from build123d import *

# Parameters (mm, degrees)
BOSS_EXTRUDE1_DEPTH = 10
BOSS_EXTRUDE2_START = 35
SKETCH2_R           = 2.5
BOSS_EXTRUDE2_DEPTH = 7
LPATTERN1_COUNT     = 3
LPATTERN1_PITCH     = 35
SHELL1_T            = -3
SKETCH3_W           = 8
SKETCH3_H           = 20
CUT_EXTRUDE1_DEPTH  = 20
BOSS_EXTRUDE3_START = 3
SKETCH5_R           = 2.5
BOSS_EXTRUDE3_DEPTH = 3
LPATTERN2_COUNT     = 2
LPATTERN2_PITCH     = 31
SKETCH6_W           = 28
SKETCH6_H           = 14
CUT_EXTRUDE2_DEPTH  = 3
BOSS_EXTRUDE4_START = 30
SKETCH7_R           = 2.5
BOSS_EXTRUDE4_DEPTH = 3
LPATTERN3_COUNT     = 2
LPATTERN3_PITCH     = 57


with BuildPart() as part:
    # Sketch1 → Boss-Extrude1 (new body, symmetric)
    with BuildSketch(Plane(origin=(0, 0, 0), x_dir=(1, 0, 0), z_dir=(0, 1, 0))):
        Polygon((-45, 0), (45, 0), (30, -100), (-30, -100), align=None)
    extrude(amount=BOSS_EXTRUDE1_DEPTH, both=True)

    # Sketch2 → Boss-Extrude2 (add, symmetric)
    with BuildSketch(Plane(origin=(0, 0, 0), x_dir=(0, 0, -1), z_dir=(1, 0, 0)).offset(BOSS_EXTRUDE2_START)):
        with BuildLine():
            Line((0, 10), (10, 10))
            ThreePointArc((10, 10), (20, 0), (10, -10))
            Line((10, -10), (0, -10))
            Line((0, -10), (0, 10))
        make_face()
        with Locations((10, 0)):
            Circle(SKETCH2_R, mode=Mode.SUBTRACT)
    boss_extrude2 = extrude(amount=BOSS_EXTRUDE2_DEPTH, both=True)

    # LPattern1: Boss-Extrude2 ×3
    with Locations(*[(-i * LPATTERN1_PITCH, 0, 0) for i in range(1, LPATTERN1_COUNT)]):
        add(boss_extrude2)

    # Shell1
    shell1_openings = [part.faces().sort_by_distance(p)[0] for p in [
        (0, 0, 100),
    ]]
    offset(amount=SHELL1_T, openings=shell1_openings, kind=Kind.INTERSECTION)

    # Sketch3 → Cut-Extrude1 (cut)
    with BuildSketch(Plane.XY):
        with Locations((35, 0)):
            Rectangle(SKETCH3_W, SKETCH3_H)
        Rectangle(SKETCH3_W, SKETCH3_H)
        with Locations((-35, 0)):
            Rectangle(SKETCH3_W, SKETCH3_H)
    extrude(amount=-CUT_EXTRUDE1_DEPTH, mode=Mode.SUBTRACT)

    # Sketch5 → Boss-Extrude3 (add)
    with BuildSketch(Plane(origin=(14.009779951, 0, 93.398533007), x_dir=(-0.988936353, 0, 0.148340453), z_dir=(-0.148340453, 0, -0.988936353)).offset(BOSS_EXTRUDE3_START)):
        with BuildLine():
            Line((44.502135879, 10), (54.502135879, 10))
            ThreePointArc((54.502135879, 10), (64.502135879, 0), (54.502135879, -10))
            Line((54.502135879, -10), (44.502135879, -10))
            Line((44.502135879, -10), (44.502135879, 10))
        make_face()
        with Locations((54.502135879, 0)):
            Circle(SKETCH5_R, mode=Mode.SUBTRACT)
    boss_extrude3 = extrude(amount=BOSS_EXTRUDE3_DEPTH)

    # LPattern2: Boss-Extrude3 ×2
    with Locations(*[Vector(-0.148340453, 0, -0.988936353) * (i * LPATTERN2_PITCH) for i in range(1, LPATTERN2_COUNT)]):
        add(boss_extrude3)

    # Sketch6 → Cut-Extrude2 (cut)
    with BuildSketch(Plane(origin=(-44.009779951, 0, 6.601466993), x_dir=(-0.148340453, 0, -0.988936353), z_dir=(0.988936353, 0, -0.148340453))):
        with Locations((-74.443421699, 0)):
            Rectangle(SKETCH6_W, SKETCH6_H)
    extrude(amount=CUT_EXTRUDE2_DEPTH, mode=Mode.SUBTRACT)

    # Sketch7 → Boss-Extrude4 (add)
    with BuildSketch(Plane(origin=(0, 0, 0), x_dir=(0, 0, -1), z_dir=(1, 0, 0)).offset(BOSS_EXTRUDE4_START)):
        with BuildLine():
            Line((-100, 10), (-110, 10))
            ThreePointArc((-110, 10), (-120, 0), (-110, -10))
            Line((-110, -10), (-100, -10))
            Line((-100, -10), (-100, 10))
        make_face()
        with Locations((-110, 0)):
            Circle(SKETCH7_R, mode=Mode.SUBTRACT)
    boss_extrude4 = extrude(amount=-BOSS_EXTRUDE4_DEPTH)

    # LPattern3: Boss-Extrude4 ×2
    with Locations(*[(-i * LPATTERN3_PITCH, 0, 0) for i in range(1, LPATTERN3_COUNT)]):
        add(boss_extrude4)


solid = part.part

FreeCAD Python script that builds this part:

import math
import FreeCAD as App
import Part
import Sketcher
from FreeCAD import Vector
Q = App.Units.Quantity


def faces_at(feature, points):
    """Names of the faces that lie closest to the given points."""
    faces = feature.Shape.Faces
    near = lambda p: min(range(len(faces)), key=lambda i: faces[i].distToShape(Part.Vertex(*p))[0])
    return sorted({f"Face{near(p) + 1}" for p in points})

doc = App.newDocument("Part")
body = doc.addObject("PartDesign::Body", "Body")

# Sketch on XZ plane
sketch1 = body.newObject("Sketcher::SketchObject", "Sketch")
sketch1.AttachmentSupport = (doc.getObject("XZ_Plane"), [""])
sketch1.MapMode = "FlatFace"
sketch1.addGeometry(Part.LineSegment(Vector(45, 0, 0), Vector(-45, 0, 0)), False)
sketch1.addGeometry(Part.LineSegment(Vector(-45, 0, 0), Vector(-30, 100, 0)), False)
sketch1.addGeometry(Part.LineSegment(Vector(-30, 100, 0), Vector(30, 100, 0)), False)
sketch1.addGeometry(Part.LineSegment(Vector(30, 100, 0), Vector(45, 0, 0)), False)
sketch1.addConstraint(Sketcher.Constraint("Coincident", 0, 2, 1, 1))
sketch1.addConstraint(Sketcher.Constraint("Coincident", 1, 2, 2, 1))
sketch1.addConstraint(Sketcher.Constraint("Coincident", 2, 2, 3, 1))
sketch1.addConstraint(Sketcher.Constraint("Coincident", 3, 2, 0, 1))
sketch1.addConstraint(Sketcher.Constraint("Horizontal", 0))
sketch1.addConstraint(Sketcher.Constraint("Horizontal", 2))
sketch1.addConstraint(Sketcher.Constraint("Symmetric", 0, 2, 3, 2, -1, 1))
sketch1.addConstraint(Sketcher.Constraint("Equal", 1, 3))
sketch1.addConstraint(Sketcher.Constraint("DistanceX", 0, 2, 0, 1, Q("90 mm")))
sketch1.addConstraint(Sketcher.Constraint("DistanceX", 2, 1, 2, 2, Q("60 mm")))
sketch1.addConstraint(Sketcher.Constraint("DistanceY", -1, 1, 1, 2, Q("100 mm")))
pad1 = body.newObject("PartDesign::Pad", "Pad")
pad1.Profile = sketch1
pad1.Length = 20
pad1.Midplane = True

# Sketch on YZ plane
sketch2 = body.newObject("Sketcher::SketchObject", "Sketch001")
sketch2.AttachmentSupport = (doc.getObject("YZ_Plane"), [""])
sketch2.MapMode = "FlatFace"
sketch2.AttachmentOffset = App.Placement(Vector(0, 0, 35), App.Rotation())
sketch2.addGeometry(Part.LineSegment(Vector(10, -10, 0), Vector(10, 0, 0)), False)
sketch2.addGeometry(Part.LineSegment(Vector(10, 0, 0), Vector(-10, 0, 0)), False)
sketch2.addGeometry(Part.LineSegment(Vector(-10, 0, 0), Vector(-10, -10, 0)), False)
sketch2.addGeometry(Part.ArcOfCircle(Part.Circle(Vector(0, -10, 0), Vector(0, 0, 1), 10), math.radians(180), math.radians(360)), False)
sketch2.addGeometry(Part.Circle(Vector(0, -10, 0), Vector(0, 0, 1), 2.5), False)
sketch2.addConstraint(Sketcher.Constraint("Coincident", 0, 2, 1, 1))
sketch2.addConstraint(Sketcher.Constraint("Coincident", 1, 2, 2, 1))
sketch2.addConstraint(Sketcher.Constraint("Tangent", 2, 2, 3, 1))
sketch2.addConstraint(Sketcher.Constraint("Tangent", 3, 2, 0, 1))
sketch2.addConstraint(Sketcher.Constraint("Vertical", 0))
sketch2.addConstraint(Sketcher.Constraint("Horizontal", 1))
sketch2.addConstraint(Sketcher.Constraint("Vertical", 2))
sketch2.addConstraint(Sketcher.Constraint("Coincident", 4, 3, 3, 3))
sketch2.addConstraint(Sketcher.Constraint("Symmetric", 0, 2, 1, 2, -1, 1))
sketch2.addConstraint(Sketcher.Constraint("Diameter", 4, Q("5 mm")))
sketch2.addConstraint(Sketcher.Constraint("Radius", 3, Q("10 mm")))
sketch2.addConstraint(Sketcher.Constraint("DistanceY", 0, 1, 0, 2, Q("10 mm")))
pad2 = body.newObject("PartDesign::Pad", "Pad001")
pad2.Profile = sketch2
pad2.Length = 14
pad2.Midplane = True
doc.recompute()

linearpattern = body.newObject("PartDesign::LinearPattern", "LinearPattern")
linearpattern.Originals = [pad2]
linearpattern.Direction = (doc.getObject("X_Axis"), [""])
linearpattern.Mode = "offset"
linearpattern.Offset = 35
linearpattern.Occurrences = 3
linearpattern.Reversed = True
body.Tip = linearpattern
doc.recompute()

thickness = body.newObject("PartDesign::Thickness", "Thickness")
thickness.Base = (linearpattern, faces_at(linearpattern, [(0, 0, 100)]))
thickness.Value = 3
thickness.Reversed = True
thickness.Join = "Intersection"

# Sketch on XY plane
sketch3 = body.newObject("Sketcher::SketchObject", "Sketch002")
sketch3.AttachmentSupport = (doc.getObject("XY_Plane"), [""])
sketch3.MapMode = "FlatFace"
sketch3.addGeometry(Part.LineSegment(Vector(31, 10, 0), Vector(31, -10, 0)), False)
sketch3.addGeometry(Part.LineSegment(Vector(31, -10, 0), Vector(39, -10, 0)), False)
sketch3.addGeometry(Part.LineSegment(Vector(39, -10, 0), Vector(39, 10, 0)), False)
sketch3.addGeometry(Part.LineSegment(Vector(39, 10, 0), Vector(31, 10, 0)), False)
sketch3.addGeometry(Part.LineSegment(Vector(-4, 10, 0), Vector(-4, -10, 0)), False)
sketch3.addGeometry(Part.LineSegment(Vector(-4, -10, 0), Vector(4, -10, 0)), False)
sketch3.addGeometry(Part.LineSegment(Vector(4, -10, 0), Vector(4, 10, 0)), False)
sketch3.addGeometry(Part.LineSegment(Vector(4, 10, 0), Vector(-4, 10, 0)), False)
sketch3.addGeometry(Part.LineSegment(Vector(-39, 10, 0), Vector(-39, -10, 0)), False)
sketch3.addGeometry(Part.LineSegment(Vector(-39, -10, 0), Vector(-31, -10, 0)), False)
sketch3.addGeometry(Part.LineSegment(Vector(-31, -10, 0), Vector(-31, 10, 0)), False)
sketch3.addGeometry(Part.LineSegment(Vector(-31, 10, 0), Vector(-39, 10, 0)), False)
sketch3.addConstraint(Sketcher.Constraint("Coincident", 0, 2, 1, 1))
sketch3.addConstraint(Sketcher.Constraint("Coincident", 1, 2, 2, 1))
sketch3.addConstraint(Sketcher.Constraint("Coincident", 2, 2, 3, 1))
sketch3.addConstraint(Sketcher.Constraint("Coincident", 3, 2, 0, 1))
sketch3.addConstraint(Sketcher.Constraint("Coincident", 4, 2, 5, 1))
sketch3.addConstraint(Sketcher.Constraint("Coincident", 5, 2, 6, 1))
sketch3.addConstraint(Sketcher.Constraint("Coincident", 6, 2, 7, 1))
sketch3.addConstraint(Sketcher.Constraint("Coincident", 7, 2, 4, 1))
sketch3.addConstraint(Sketcher.Constraint("Coincident", 8, 2, 9, 1))
sketch3.addConstraint(Sketcher.Constraint("Coincident", 9, 2, 10, 1))
sketch3.addConstraint(Sketcher.Constraint("Coincident", 10, 2, 11, 1))
sketch3.addConstraint(Sketcher.Constraint("Coincident", 11, 2, 8, 1))
sketch3.addConstraint(Sketcher.Constraint("Vertical", 0))
sketch3.addConstraint(Sketcher.Constraint("Horizontal", 1))
sketch3.addConstraint(Sketcher.Constraint("Vertical", 2))
sketch3.addConstraint(Sketcher.Constraint("Horizontal", 3))
sketch3.addConstraint(Sketcher.Constraint("Vertical", 4))
sketch3.addConstraint(Sketcher.Constraint("Horizontal", 5))
sketch3.addConstraint(Sketcher.Constraint("Vertical", 6))
sketch3.addConstraint(Sketcher.Constraint("Horizontal", 7))
sketch3.addConstraint(Sketcher.Constraint("Vertical", 8))
sketch3.addConstraint(Sketcher.Constraint("Horizontal", 9))
sketch3.addConstraint(Sketcher.Constraint("Vertical", 10))
sketch3.addConstraint(Sketcher.Constraint("Horizontal", 11))
sketch3.addConstraint(Sketcher.Constraint("Symmetric", 4, 2, 6, 2, -1, 1))
sketch3.addConstraint(Sketcher.Constraint("Symmetric", 2, 2, 8, 2, -1, 1))
sketch3.addConstraint(Sketcher.Constraint("Symmetric", 0, 2, 10, 2, -1, 1))
sketch3.addConstraint(Sketcher.Constraint("Horizontal", 1, 2, 4, 2))
sketch3.addConstraint(Sketcher.Constraint("Horizontal", 3, 2, 6, 2))
sketch3.addConstraint(Sketcher.Constraint("Equal", 3, 5))
sketch3.addConstraint(Sketcher.Constraint("DistanceX", 1, 1, 1, 2, Q("8 mm")))
sketch3.addConstraint(Sketcher.Constraint("DistanceY", 0, 2, 0, 1, Q("20 mm")))
sketch3.addConstraint(Sketcher.Constraint("DistanceX", -1, 1, 0, 2, Q("31 mm")))
pocket1 = body.newObject("PartDesign::Pocket", "Pocket")
pocket1.Profile = sketch3
pocket1.Length = 20

# Sketch on an angled plane
sketch4 = body.newObject("Sketcher::SketchObject", "Sketch003")
sketch4.Placement = App.Placement(Vector(13.564759, 0, 90.431724), App.Rotation(Vector(-0.988936353, 0, 0.148340453), Vector(0, 1, 0), Vector(-0.148340453, 0, -0.988936353), "ZXY"))
sketch4.addGeometry(Part.LineSegment(Vector(54.5, 10, 0), Vector(44.5, 10, 0)), False)
sketch4.addGeometry(Part.LineSegment(Vector(44.5, 10, 0), Vector(44.5, -10, 0)), False)
sketch4.addGeometry(Part.LineSegment(Vector(44.5, -10, 0), Vector(54.5, -10, 0)), False)
sketch4.addGeometry(Part.ArcOfCircle(Part.Circle(Vector(54.5, 0, 0), Vector(0, 0, 1), 10), math.radians(-90), math.radians(90)), False)
sketch4.addGeometry(Part.Circle(Vector(54.5, 0, 0), Vector(0, 0, 1), 2.5), False)
sketch4.addConstraint(Sketcher.Constraint("Coincident", 0, 2, 1, 1))
sketch4.addConstraint(Sketcher.Constraint("Coincident", 1, 2, 2, 1))
sketch4.addConstraint(Sketcher.Constraint("Tangent", 2, 2, 3, 1))
sketch4.addConstraint(Sketcher.Constraint("Tangent", 3, 2, 0, 1))
sketch4.addConstraint(Sketcher.Constraint("Horizontal", 0))
sketch4.addConstraint(Sketcher.Constraint("Vertical", 1))
sketch4.addConstraint(Sketcher.Constraint("Horizontal", 2))
sketch4.addConstraint(Sketcher.Constraint("Coincident", 4, 3, 3, 3))
sketch4.addConstraint(Sketcher.Constraint("PointOnObject", 3, 3, -1))
sketch4.addConstraint(Sketcher.Constraint("Diameter", 4, Q("5 mm")))
sketch4.addConstraint(Sketcher.Constraint("Radius", 3, Q("10 mm")))
sketch4.addConstraint(Sketcher.Constraint("DistanceX", 0, 2, 0, 1, Q("10 mm")))
sketch4.addConstraint(Sketcher.Constraint("DistanceX", -1, 1, 3, 3, Q("54.502136 mm")))
pad3 = body.newObject("PartDesign::Pad", "Pad002")
pad3.Profile = sketch4
pad3.Length = 3
doc.recompute()

datumline = body.newObject("PartDesign::Line", "DatumLine")
datumline.Placement = App.Placement(Vector(0, 0, 0), App.Rotation(Vector(0, 0, 1), Vector(-0.148340453, 0, -0.988936353)))
linearpattern2 = body.newObject("PartDesign::LinearPattern", "LinearPattern001")
linearpattern2.Originals = [pad3]
linearpattern2.Direction = (datumline, [""])
linearpattern2.Mode = "offset"
linearpattern2.Offset = 31
linearpattern2.Occurrences = 2
body.Tip = linearpattern2

# Sketch on an angled plane
sketch5 = body.newObject("Sketcher::SketchObject", "Sketch004")
sketch5.Placement = App.Placement(Vector(-44.00978, 0, 6.601467), App.Rotation(Vector(-0.148340453, 0, -0.988936353), Vector(0, 1, 0), Vector(0.988936353, 0, -0.148340453), "ZXY"))
sketch5.addGeometry(Part.LineSegment(Vector(-88, 7, 0), Vector(-88, -7, 0)), False)
sketch5.addGeometry(Part.LineSegment(Vector(-88, -7, 0), Vector(-60, -7, 0)), False)
sketch5.addGeometry(Part.LineSegment(Vector(-60, -7, 0), Vector(-60, 7, 0)), False)
sketch5.addGeometry(Part.LineSegment(Vector(-60, 7, 0), Vector(-88, 7, 0)), False)
sketch5.addConstraint(Sketcher.Constraint("Coincident", 0, 2, 1, 1))
sketch5.addConstraint(Sketcher.Constraint("Coincident", 1, 2, 2, 1))
sketch5.addConstraint(Sketcher.Constraint("Coincident", 2, 2, 3, 1))
sketch5.addConstraint(Sketcher.Constraint("Coincident", 3, 2, 0, 1))
sketch5.addConstraint(Sketcher.Constraint("Vertical", 0))
sketch5.addConstraint(Sketcher.Constraint("Horizontal", 1))
sketch5.addConstraint(Sketcher.Constraint("Vertical", 2))
sketch5.addConstraint(Sketcher.Constraint("Horizontal", 3))
sketch5.addConstraint(Sketcher.Constraint("DistanceX", 1, 1, 1, 2, Q("28 mm")))
sketch5.addConstraint(Sketcher.Constraint("DistanceY", 0, 2, 0, 1, Q("14 mm")))
sketch5.addConstraint(Sketcher.Constraint("DistanceY", 0, 2, -1, 1, Q("7 mm")))
sketch5.addConstraint(Sketcher.Constraint("DistanceX", 0, 2, -1, 1, Q("88.443422 mm")))
pocket2 = body.newObject("PartDesign::Pocket", "Pocket001")
pocket2.Profile = sketch5
pocket2.Length = 3
pocket2.Reversed = True

# Sketch on YZ plane
sketch6 = body.newObject("Sketcher::SketchObject", "Sketch005")
sketch6.AttachmentSupport = (doc.getObject("YZ_Plane"), [""])
sketch6.MapMode = "FlatFace"
sketch6.AttachmentOffset = App.Placement(Vector(0, 0, 30), App.Rotation())
sketch6.addGeometry(Part.LineSegment(Vector(10, 100, 0), Vector(10, 110, 0)), False)
sketch6.addGeometry(Part.ArcOfCircle(Part.Circle(Vector(0, 110, 0), Vector(0, 0, 1), 10), math.radians(0), math.radians(180)), False)
sketch6.addGeometry(Part.LineSegment(Vector(-10, 110, 0), Vector(-10, 100, 0)), False)
sketch6.addGeometry(Part.LineSegment(Vector(-10, 100, 0), Vector(10, 100, 0)), False)
sketch6.addGeometry(Part.Circle(Vector(0, 110, 0), Vector(0, 0, 1), 2.5), False)
sketch6.addConstraint(Sketcher.Constraint("Tangent", 0, 2, 1, 1))
sketch6.addConstraint(Sketcher.Constraint("Tangent", 1, 2, 2, 1))
sketch6.addConstraint(Sketcher.Constraint("Coincident", 2, 2, 3, 1))
sketch6.addConstraint(Sketcher.Constraint("Coincident", 3, 2, 0, 1))
sketch6.addConstraint(Sketcher.Constraint("Vertical", 0))
sketch6.addConstraint(Sketcher.Constraint("Vertical", 2))
sketch6.addConstraint(Sketcher.Constraint("Horizontal", 3))
sketch6.addConstraint(Sketcher.Constraint("Coincident", 4, 3, 1, 3))
sketch6.addConstraint(Sketcher.Constraint("PointOnObject", 1, 3, -2))
sketch6.addConstraint(Sketcher.Constraint("Diameter", 4, Q("5 mm")))
sketch6.addConstraint(Sketcher.Constraint("Radius", 1, Q("10 mm")))
sketch6.addConstraint(Sketcher.Constraint("DistanceY", 0, 1, 0, 2, Q("10 mm")))
sketch6.addConstraint(Sketcher.Constraint("DistanceY", -1, 1, 1, 3, Q("110 mm")))
pad4 = body.newObject("PartDesign::Pad", "Pad003")
pad4.Profile = sketch6
pad4.Length = 3
pad4.Reversed = True
doc.recompute()

linearpattern3 = body.newObject("PartDesign::LinearPattern", "LinearPattern002")
linearpattern3.Originals = [pad4]
linearpattern3.Direction = (doc.getObject("X_Axis"), [""])
linearpattern3.Mode = "offset"
linearpattern3.Offset = 57
linearpattern3.Occurrences = 2
linearpattern3.Reversed = True
body.Tip = linearpattern3

doc.recompute()
